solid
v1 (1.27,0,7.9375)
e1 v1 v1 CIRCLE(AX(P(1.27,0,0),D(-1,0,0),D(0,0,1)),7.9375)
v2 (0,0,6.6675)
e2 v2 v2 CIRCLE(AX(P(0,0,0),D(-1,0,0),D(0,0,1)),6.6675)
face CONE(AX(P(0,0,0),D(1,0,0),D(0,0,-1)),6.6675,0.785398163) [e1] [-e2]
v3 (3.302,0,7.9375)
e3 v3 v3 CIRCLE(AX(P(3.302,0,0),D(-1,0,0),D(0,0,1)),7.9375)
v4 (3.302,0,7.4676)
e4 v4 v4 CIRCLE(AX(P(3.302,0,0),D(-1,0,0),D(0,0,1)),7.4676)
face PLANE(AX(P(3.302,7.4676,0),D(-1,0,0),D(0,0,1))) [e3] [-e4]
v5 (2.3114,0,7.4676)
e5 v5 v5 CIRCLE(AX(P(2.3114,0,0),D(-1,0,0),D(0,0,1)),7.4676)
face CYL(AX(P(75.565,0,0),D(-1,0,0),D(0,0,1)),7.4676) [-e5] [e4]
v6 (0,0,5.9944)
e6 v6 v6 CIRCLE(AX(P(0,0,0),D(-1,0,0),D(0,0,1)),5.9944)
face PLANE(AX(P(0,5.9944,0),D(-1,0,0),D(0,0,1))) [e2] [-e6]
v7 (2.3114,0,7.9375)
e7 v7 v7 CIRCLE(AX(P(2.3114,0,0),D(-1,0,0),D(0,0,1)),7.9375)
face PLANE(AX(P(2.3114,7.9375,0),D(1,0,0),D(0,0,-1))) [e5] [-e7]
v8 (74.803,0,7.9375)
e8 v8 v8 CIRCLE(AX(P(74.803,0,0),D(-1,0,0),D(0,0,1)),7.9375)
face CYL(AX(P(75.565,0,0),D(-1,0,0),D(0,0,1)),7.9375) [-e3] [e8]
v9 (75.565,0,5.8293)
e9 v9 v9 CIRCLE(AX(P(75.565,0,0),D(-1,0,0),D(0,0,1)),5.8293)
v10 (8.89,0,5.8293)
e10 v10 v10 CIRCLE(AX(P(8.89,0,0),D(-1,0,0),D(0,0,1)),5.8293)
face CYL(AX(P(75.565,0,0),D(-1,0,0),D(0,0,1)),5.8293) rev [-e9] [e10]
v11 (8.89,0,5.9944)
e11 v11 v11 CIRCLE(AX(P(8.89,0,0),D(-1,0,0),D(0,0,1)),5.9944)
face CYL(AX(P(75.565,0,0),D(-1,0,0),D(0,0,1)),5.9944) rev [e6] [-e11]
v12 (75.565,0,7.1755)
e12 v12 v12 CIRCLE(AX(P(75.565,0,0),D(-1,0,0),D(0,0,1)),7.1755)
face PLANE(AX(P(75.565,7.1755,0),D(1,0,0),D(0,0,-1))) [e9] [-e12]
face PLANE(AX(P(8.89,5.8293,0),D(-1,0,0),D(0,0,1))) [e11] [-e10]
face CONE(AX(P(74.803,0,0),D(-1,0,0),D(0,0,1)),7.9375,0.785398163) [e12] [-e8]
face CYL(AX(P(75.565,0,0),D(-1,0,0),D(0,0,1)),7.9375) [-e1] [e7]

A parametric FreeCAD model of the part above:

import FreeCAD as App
import Part
import Sketcher
Q = App.Units.Quantity

doc = App.newDocument("Part")
params = doc.addObject("Spreadsheet::Sheet", "Params")
for row, (alias, value) in enumerate([
    ("sketch1_width", "0.35 in"),
    ("sketch1_width2", "0.041 in"),
    ("sketch1_width3", "0.039 in"),
    ("sketch1_width4", "2.815 in"),
    ("sketch1_width5", "2.625 in"),
    ("revolution_angle", "360 deg"),
], start=1):
    params.set(f"A{row}", alias)
    params.set(f"B{row}", "=" + value)
    params.setAlias(f"B{row}", alias)

body = doc.addObject("PartDesign::Body", "Body")

# Sketch on XY plane
sketch1 = doc.addObject("Sketcher::SketchObject", "Sketch")
body.addObject(sketch1)
sketch1.AttachmentSupport = (doc.XY_Plane, [""])
sketch1.MapMode = "FlatFace"
sketch1.addGeometry(Part.LineSegment(App.Vector(0, 5.9944, 0), App.Vector(0, 6.6675, 0)), False)
sketch1.addGeometry(Part.LineSegment(App.Vector(0, 6.6675, 0), App.Vector(1.27, 7.9375, 0)), False)
sketch1.addGeometry(Part.LineSegment(App.Vector(1.27, 7.9375, 0), App.Vector(2.3114, 7.9375, 0)), False)
sketch1.addGeometry(Part.LineSegment(App.Vector(2.3114, 7.9375, 0), App.Vector(2.3114, 7.4676, 0)), False)
sketch1.addGeometry(Part.LineSegment(App.Vector(2.3114, 7.4676, 0), App.Vector(3.302, 7.4676, 0)), False)
sketch1.addGeometry(Part.LineSegment(App.Vector(3.302, 7.4676, 0), App.Vector(3.302, 7.9375, 0)), False)
sketch1.addGeometry(Part.LineSegment(App.Vector(3.302, 7.9375, 0), App.Vector(74.803, 7.9375, 0)), False)
sketch1.addGeometry(Part.LineSegment(App.Vector(74.803, 7.9375, 0), App.Vector(75.565, 7.1755, 0)), False)
sketch1.addGeometry(Part.LineSegment(App.Vector(75.565, 7.1755, 0), App.Vector(75.565, 5.8293, 0)), False)
sketch1.addGeometry(Part.LineSegment(App.Vector(75.565, 5.8293, 0), App.Vector(8.89, 5.8293, 0)), False)
sketch1.addGeometry(Part.LineSegment(App.Vector(8.89, 5.8293, 0), App.Vector(8.89, 5.9944, 0)), False)
sketch1.addGeometry(Part.LineSegment(App.Vector(8.89, 5.9944, 0), App.Vector(0, 5.9944, 0)), False)
sketch1.addConstraint(Sketcher.Constraint("Coincident", 0, 2, 1, 1))
sketch1.addConstraint(Sketcher.Constraint("Coincident", 1, 2, 2, 1))
sketch1.addConstraint(Sketcher.Constraint("Coincident", 2, 2, 3, 1))
sketch1.addConstraint(Sketcher.Constraint("Coincident", 3, 2, 4, 1))
sketch1.addConstraint(Sketcher.Constraint("Coincident", 4, 2, 5, 1))
sketch1.addConstraint(Sketcher.Constraint("Coincident", 5, 2, 6, 1))
sketch1.addConstraint(Sketcher.Constraint("Coincident", 6, 2, 7, 1))
sketch1.addConstraint(Sketcher.Constraint("Coincident", 7, 2, 8, 1))
sketch1.addConstraint(Sketcher.Constraint("Coincident", 8, 2, 9, 1))
sketch1.addConstraint(Sketcher.Constraint("Coincident", 9, 2, 10, 1))
sketch1.addConstraint(Sketcher.Constraint("Coincident", 10, 2, 11, 1))
sketch1.addConstraint(Sketcher.Constraint("Coincident", 11, 2, 0, 1))
sketch1.addConstraint(Sketcher.Constraint("Vertical", 0))
sketch1.addConstraint(Sketcher.Constraint("Horizontal", 2))
sketch1.addConstraint(Sketcher.Constraint("Vertical", 3))
sketch1.addConstraint(Sketcher.Constraint("Horizontal", 4))
sketch1.addConstraint(Sketcher.Constraint("Vertical", 5))
sketch1.addConstraint(Sketcher.Constraint("Horizontal", 6))
sketch1.addConstraint(Sketcher.Constraint("Vertical", 8))
sketch1.addConstraint(Sketcher.Constraint("Horizontal", 9))
sketch1.addConstraint(Sketcher.Constraint("Vertical", 10))
sketch1.addConstraint(Sketcher.Constraint("Horizontal", 11))
sketch1.addConstraint(Sketcher.Constraint("PointOnObject", 0, 2, -2))
sketch1.addConstraint(Sketcher.Constraint("Perpendicular", 1, 7))
sketch1.addConstraint(Sketcher.Constraint("Horizontal", 2, 2, 5, 2))
sketch1.addConstraint(Sketcher.Constraint("Angle", 1, Q("45 deg")))
sketch1.addConstraint(Sketcher.Constraint("DistanceX", 11, 2, 11, 1, Q("0.35 in")))
sketch1.addConstraint(Sketcher.Constraint("DistanceX", 1, 2, 9, 2, Q("0.3 in")))
sketch1.addConstraint(Sketcher.Constraint("DistanceX", 2, 1, 2, 2, Q("0.041 in")))
sketch1.addConstraint(Sketcher.Constraint("DistanceX", 4, 1, 4, 2, Q("0.039 in")))
sketch1.addConstraint(Sketcher.Constraint("DistanceX", 6, 1, 6, 2, Q("2.815 in")))
sketch1.addConstraint(Sketcher.Constraint("DistanceX", 9, 2, 9, 1, Q("2.625 in")))
sketch1.addConstraint(Sketcher.Constraint("DistanceY", 8, 2, 8, 1, Q("0.053 in")))
sketch1.addConstraint(Sketcher.Constraint("DistanceY", 0, 1, 0, 2, Q("0.0265 in")))
sketch1.addConstraint(Sketcher.Constraint("DistanceY", 3, 2, 3, 1, Q("0.0185 in")))
sketch1.addConstraint(Sketcher.Constraint("DistanceY", -1, 1, 1, 2, Q("0.3125 in")))
sketch1.setExpression("Constraints[26]", "Params.sketch1_width")
sketch1.setExpression("Constraints[28]", "Params.sketch1_width2")
sketch1.setExpression("Constraints[29]", "Params.sketch1_width3")
sketch1.setExpression("Constraints[30]", "Params.sketch1_width4")
sketch1.setExpression("Constraints[31]", "Params.sketch1_width5")
revolution = doc.addObject("PartDesign::Revolution", "Revolution")
body.addObject(revolution)
revolution.Profile = sketch1
revolution.ReferenceAxis = (sketch1, ["H_Axis"])
revolution.setExpression("Angle", "Params.revolution_angle")

doc.recompute()
